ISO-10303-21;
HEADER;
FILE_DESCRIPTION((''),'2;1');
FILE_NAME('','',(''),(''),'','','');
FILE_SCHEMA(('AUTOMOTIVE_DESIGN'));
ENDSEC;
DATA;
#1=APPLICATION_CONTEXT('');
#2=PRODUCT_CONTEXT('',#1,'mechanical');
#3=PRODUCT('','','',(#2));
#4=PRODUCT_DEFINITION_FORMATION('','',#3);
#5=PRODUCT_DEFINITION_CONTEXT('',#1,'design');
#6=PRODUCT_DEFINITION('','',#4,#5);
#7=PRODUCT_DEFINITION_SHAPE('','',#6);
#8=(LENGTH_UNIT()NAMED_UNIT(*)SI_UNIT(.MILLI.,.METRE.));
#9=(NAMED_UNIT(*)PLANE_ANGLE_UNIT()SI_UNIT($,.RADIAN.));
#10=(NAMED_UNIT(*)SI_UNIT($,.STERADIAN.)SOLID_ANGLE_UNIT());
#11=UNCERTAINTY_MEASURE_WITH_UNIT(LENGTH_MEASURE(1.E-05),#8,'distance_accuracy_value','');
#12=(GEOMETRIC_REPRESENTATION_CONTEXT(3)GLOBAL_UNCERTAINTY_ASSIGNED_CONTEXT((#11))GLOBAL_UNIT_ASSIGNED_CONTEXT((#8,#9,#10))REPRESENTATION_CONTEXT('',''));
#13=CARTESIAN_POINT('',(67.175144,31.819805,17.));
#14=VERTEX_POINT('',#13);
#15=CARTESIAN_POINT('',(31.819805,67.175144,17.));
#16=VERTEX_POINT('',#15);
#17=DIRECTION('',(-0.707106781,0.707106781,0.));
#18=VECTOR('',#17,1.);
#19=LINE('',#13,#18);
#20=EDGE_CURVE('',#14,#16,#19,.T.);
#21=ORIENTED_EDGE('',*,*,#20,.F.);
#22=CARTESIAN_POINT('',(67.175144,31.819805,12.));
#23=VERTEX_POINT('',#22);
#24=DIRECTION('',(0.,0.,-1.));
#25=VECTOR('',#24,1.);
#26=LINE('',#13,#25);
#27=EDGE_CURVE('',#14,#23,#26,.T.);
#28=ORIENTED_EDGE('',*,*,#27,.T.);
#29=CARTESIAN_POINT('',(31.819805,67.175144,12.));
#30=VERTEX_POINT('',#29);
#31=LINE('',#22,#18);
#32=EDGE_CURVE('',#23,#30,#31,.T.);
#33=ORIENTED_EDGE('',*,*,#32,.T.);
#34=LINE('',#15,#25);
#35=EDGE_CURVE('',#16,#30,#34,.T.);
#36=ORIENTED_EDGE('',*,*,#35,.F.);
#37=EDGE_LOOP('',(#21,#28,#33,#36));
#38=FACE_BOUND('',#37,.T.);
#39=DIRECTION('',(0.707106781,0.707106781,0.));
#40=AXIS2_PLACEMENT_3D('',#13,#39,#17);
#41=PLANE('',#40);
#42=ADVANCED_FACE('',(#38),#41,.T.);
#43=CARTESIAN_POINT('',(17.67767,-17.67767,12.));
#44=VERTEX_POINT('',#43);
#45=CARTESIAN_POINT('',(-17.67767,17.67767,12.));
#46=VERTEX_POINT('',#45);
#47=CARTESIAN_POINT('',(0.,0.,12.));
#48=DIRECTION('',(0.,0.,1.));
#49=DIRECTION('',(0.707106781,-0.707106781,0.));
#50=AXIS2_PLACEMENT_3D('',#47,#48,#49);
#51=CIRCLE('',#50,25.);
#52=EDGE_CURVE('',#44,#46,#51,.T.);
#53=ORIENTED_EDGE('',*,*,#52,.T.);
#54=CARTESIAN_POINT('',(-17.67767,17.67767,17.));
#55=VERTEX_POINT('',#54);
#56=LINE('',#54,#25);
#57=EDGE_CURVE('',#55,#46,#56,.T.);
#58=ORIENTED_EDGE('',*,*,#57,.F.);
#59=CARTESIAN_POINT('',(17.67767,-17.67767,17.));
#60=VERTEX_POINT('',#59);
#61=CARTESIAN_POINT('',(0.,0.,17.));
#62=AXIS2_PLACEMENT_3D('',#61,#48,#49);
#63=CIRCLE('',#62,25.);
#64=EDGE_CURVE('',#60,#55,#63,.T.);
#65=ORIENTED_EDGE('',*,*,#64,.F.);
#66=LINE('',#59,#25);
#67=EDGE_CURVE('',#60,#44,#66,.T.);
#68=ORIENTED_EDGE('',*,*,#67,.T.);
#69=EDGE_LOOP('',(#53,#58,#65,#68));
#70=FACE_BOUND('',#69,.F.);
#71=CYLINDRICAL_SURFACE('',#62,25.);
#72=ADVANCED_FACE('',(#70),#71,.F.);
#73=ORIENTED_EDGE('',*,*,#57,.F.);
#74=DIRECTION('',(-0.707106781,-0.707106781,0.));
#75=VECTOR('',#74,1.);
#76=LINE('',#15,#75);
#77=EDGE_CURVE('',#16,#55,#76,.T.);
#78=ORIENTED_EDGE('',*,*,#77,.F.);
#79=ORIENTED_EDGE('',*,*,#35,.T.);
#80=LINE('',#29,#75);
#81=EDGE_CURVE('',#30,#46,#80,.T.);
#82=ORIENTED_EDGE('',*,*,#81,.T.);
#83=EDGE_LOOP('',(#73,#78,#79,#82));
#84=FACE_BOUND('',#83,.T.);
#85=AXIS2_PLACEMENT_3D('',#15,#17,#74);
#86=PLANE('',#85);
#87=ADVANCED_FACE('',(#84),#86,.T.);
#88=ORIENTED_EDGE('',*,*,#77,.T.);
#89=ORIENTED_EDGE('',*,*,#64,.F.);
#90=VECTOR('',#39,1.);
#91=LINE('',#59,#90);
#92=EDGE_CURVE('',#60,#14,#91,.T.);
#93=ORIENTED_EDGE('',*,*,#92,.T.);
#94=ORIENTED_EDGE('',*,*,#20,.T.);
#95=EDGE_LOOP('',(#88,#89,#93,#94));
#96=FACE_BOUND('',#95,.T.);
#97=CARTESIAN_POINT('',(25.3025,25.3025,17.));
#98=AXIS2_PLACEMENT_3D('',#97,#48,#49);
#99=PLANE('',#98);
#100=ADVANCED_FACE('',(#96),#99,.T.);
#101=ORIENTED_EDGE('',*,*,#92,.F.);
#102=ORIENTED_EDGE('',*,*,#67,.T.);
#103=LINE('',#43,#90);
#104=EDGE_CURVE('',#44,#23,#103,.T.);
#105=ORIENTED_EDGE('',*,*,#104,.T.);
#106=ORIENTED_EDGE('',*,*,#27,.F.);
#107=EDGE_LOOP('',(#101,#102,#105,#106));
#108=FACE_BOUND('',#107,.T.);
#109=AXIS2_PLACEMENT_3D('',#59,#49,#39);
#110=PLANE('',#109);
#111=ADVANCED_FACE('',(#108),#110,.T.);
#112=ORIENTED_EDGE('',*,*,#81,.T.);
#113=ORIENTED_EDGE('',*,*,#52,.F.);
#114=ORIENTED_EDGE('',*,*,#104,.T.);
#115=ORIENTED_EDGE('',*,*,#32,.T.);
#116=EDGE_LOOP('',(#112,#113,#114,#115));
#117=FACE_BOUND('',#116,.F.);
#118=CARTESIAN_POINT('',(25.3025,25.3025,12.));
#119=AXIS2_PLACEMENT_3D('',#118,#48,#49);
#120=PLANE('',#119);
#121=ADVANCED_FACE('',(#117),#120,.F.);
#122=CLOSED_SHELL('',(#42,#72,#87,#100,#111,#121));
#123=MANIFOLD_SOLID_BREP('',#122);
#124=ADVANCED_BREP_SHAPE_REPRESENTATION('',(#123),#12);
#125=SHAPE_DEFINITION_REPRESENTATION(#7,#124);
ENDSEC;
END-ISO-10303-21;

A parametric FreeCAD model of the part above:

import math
import FreeCAD as App
import Part
import Sketcher
from FreeCAD import Vector
Q = App.Units.Quantity

doc = App.newDocument("Part")
body = doc.addObject("PartDesign::Body", "Body")

sketch1 = doc.addObject("Sketcher::SketchObject", "Sketch")
body.addObject(sketch1)
sketch1.AttachmentSupport = (doc.XY_Plane, [""])
sketch1.MapMode = "FlatFace"
sketch1.addGeometry(Part.Circle(Vector(0, 0, 0), Vector(0, 0, 1), 3), False)
sketch1.addConstraint([
    Sketcher.Constraint("Coincident", 0, 3, -1, 1),
    Sketcher.Constraint("Diameter", 0, Q("6 mm")),
])
pad1 = doc.addObject("PartDesign::Pad", "Pad")
body.addObject(pad1)
pad1.Profile = sketch1
pad1.Length = 40
pad1.Reversed = True
body2 = doc.addObject("PartDesign::Body", "Body001")
doc.recompute()

body.Placement = App.Placement(Vector(-32, -32, 30), App.Rotation(Vector(0, 0, -1), 9))
boolean = doc.addObject("PartDesign::Boolean", "Boolean")
body2.addObject(boolean)
boolean.Type = "Fuse"
boolean.addObjects([body])
body3 = doc.addObject("PartDesign::Body", "Body002")

sketch2 = doc.addObject("Sketcher::SketchObject", "Sketch001")
body3.addObject(sketch2)
sketch2.AttachmentSupport = (doc.getObject("XY_Plane002"), [""])
sketch2.MapMode = "FlatFace"
sketch2.AttachmentOffset = App.Placement(Vector(0, 0, 17), App.Rotation())
sketch2.addGeometry([
    Part.LineSegment(Vector(25, 0, 0), Vector(25, 70, 0)),
    Part.LineSegment(Vector(25, 70, 0), Vector(-25, 70, 0)),
    Part.LineSegment(Vector(-25, 70, 0), Vector(-25, 0, 0)),
    Part.ArcOfCircle(Part.Circle(Vector(0, 0, 0), Vector(0, 0, 1), 25), math.radians(0), math.radians(180)),
], False)
sketch2.addConstraint([
    Sketcher.Constraint("Coincident", 0, 2, 1, 1),
    Sketcher.Constraint("Coincident", 1, 2, 2, 1),
    Sketcher.Constraint("Tangent", 2, 2, 3, 2),
    Sketcher.Constraint("Tangent", 3, 1, 0, 1),
    Sketcher.Constraint("Vertical", 0),
    Sketcher.Constraint("Horizontal", 1),
    Sketcher.Constraint("Vertical", 2),
    Sketcher.Constraint("Coincident", 3, 3, -1, 1),
    Sketcher.Constraint("Radius", 3, Q("25 mm")),
    Sketcher.Constraint("DistanceY", 0, 1, 0, 2, Q("70 mm")),
])
pad2 = doc.addObject("PartDesign::Pad", "Pad001")
body3.addObject(pad2)
pad2.Profile = sketch2
pad2.Length = 5
pad2.Reversed = True
body4 = doc.addObject("PartDesign::Body", "Body003")
doc.recompute()

body3.Placement = App.Placement(Vector(0, 0, 0), App.Rotation(Vector(0, 0, -1), 45))
boolean2 = doc.addObject("PartDesign::Boolean", "Boolean001")
body4.addObject(boolean2)
boolean2.Type = "Fuse"
boolean2.addObjects([body3])
doc.recompute()

boolean3 = doc.addObject("PartDesign::Boolean", "Boolean002")
body4.addObject(boolean3)
boolean3.Type = "Cut"
boolean3.addObjects([body2])

doc.recompute()
